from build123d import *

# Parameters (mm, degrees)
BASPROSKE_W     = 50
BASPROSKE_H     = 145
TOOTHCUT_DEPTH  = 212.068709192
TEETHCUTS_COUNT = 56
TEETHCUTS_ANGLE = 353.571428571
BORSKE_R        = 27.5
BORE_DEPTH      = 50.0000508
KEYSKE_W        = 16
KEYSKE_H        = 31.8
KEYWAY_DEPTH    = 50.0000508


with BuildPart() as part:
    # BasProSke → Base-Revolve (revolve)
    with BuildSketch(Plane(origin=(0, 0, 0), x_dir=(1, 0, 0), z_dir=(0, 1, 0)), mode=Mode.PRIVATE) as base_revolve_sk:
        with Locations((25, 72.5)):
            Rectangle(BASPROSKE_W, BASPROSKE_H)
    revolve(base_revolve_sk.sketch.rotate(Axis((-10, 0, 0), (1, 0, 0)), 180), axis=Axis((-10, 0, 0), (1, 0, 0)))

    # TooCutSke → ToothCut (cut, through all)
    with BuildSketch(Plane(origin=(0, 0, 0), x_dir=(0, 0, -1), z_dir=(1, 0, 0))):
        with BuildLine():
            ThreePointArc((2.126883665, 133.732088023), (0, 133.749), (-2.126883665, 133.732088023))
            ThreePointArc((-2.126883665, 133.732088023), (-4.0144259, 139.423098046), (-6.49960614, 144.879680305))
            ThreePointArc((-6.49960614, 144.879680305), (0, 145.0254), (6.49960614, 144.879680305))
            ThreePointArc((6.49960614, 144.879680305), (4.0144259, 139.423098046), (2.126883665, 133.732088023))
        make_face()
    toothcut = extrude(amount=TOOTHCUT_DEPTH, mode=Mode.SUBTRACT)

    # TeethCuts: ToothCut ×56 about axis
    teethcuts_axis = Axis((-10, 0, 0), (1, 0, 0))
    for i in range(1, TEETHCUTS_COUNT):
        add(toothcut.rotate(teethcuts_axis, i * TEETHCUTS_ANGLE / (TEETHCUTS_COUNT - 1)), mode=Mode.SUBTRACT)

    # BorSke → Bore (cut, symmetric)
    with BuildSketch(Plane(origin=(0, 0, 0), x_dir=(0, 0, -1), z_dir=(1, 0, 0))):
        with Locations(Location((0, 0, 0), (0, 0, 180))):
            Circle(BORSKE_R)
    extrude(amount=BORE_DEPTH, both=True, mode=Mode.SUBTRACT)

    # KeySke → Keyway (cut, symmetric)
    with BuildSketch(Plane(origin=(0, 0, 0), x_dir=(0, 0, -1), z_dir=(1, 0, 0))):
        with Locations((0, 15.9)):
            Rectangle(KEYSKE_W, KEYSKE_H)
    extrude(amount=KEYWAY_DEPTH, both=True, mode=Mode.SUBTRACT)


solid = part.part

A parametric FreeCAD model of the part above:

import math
import FreeCAD as App
import Part
import Sketcher

V = App.Vector

doc = App.newDocument("Part")
body = doc.addObject("PartDesign::Body", "Body")

# Sketch on XZ plane
sketch1 = body.newObject("Sketcher::SketchObject", "Sketch")
sketch1.AttachmentSupport = (doc.getObject("XZ_Plane"), [""])
sketch1.MapMode = "FlatFace"
sketch1.addGeometry([
    Part.LineSegment(V(0, -145, 0), V(0, 0, 0)),
    Part.LineSegment(V(0, 0, 0), V(50, 0, 0)),
    Part.LineSegment(V(50, 0, 0), V(50, -145, 0)),
    Part.LineSegment(V(50, -145, 0), V(0, -145, 0)),
], False)
sketch1.addConstraint([
    Sketcher.Constraint("Coincident", 0, 2, 1, 1),
    Sketcher.Constraint("Coincident", 1, 2, 2, 1),
    Sketcher.Constraint("Coincident", 2, 2, 3, 1),
    Sketcher.Constraint("Coincident", 3, 2, 0, 1),
    Sketcher.Constraint("Vertical", 0),
    Sketcher.Constraint("Horizontal", 1),
    Sketcher.Constraint("Vertical", 2),
    Sketcher.Constraint("Horizontal", 3),
    Sketcher.Constraint("Coincident", 0, 2, -1, 1),
    Sketcher.Constraint("DistanceX", 1, 1, 1, 2, 50.0),
    Sketcher.Constraint("DistanceY", 0, 1, 0, 2, 145.0),
])
revolution = body.newObject("PartDesign::Revolution", "Revolution")
revolution.Profile = sketch1
revolution.ReferenceAxis = (sketch1, ["H_Axis"])
revolution.Angle = 360

# Sketch on YZ plane
sketch2 = body.newObject("Sketcher::SketchObject", "Sketch001")
sketch2.AttachmentSupport = (doc.getObject("YZ_Plane"), [""])
sketch2.MapMode = "FlatFace"
sketch2.addGeometry([
    Part.ArcOfCircle(Part.Circle(V(-0.000003, 0, 0), V(0, 0, 1), 133.749003), math.radians(-0.911159), math.radians(0.911159)),
    Part.ArcOfCircle(Part.Circle(V(118.973666, -56.147148, 0), V(0, 0, 1), 56), math.radians(62.444514), math.radians(74.71959)),
    Part.ArcOfCircle(Part.Circle(V(0, 0, 0), V(0, 0, 1), 145.0254), math.radians(-2.568686), math.radians(2.568686)),
    Part.ArcOfCircle(Part.Circle(V(118.973666, 56.147148, 0), V(0, 0, 1), 56), math.radians(-74.71959), math.radians(-62.444514)),
], False)
sketch2.addConstraint([
    Sketcher.Constraint("Coincident", 0, 1, 1, 2),
    Sketcher.Constraint("Coincident", 1, 1, 2, 1),
    Sketcher.Constraint("Coincident", 2, 2, 3, 2),
    Sketcher.Constraint("Coincident", 3, 1, 0, 2),
    Sketcher.Constraint("Coincident", 0, 3, -1, 1),
    Sketcher.Constraint("Coincident", 2, 3, -1, 1),
    Sketcher.Constraint("Equal", 1, 3),
    Sketcher.Constraint("Symmetric", 1, 3, 3, 3, -1),
    Sketcher.Constraint("Radius", 1, 56.0),
    Sketcher.Constraint("Radius", 2, 145.0254),
    Sketcher.Constraint("Radius", 0, 133.749003),
    Sketcher.Constraint("DistanceY", 1, 3, -1, 1, 56.147148),
    Sketcher.Constraint("DistanceX", -1, 1, 2, 2, 144.87968),
])
pocket1 = body.newObject("PartDesign::Pocket", "Pocket")
pocket1.Profile = sketch2
pocket1.Type = "ThroughAll"
pocket1.Reversed = True
doc.recompute()

polarpattern = body.newObject("PartDesign::PolarPattern", "PolarPattern")
polarpattern.Originals = [pocket1]
polarpattern.Axis = (doc.getObject("X_Axis"), [""])
polarpattern.Angle = 360
polarpattern.Occurrences = 56
body.Tip = polarpattern

# Sketch on YZ plane
sketch3 = body.newObject("Sketcher::SketchObject", "Sketch002")
sketch3.AttachmentSupport = (doc.getObject("YZ_Plane"), [""])
sketch3.MapMode = "FlatFace"
sketch3.addGeometry(Part.Circle(V(0, 0, 0), V(0, 0, 1), 27.5), False)
sketch3.addConstraint([
    Sketcher.Constraint("Coincident", 0, 3, -1, 1),
    Sketcher.Constraint("Diameter", 0, 55.0),
])
pocket2 = body.newObject("PartDesign::Pocket", "Pocket001")
pocket2.Profile = sketch3
pocket2.Length = 100.000102
pocket2.Midplane = True

# Sketch on YZ plane
sketch4 = body.newObject("Sketcher::SketchObject", "Sketch003")
sketch4.AttachmentSupport = (doc.getObject("YZ_Plane"), [""])
sketch4.MapMode = "FlatFace"
sketch4.addGeometry([
    Part.LineSegment(V(31.8, 8, 0), V(0, 8, 0)),
    Part.LineSegment(V(0, 8, 0), V(0, -8, 0)),
    Part.LineSegment(V(0, -8, 0), V(31.8, -8, 0)),
    Part.LineSegment(V(31.8, -8, 0), V(31.8, 8, 0)),
], False)
sketch4.addConstraint([
    Sketcher.Constraint("Coincident", 0, 2, 1, 1),
    Sketcher.Constraint("Coincident", 1, 2, 2, 1),
    Sketcher.Constraint("Coincident", 2, 2, 3, 1),
    Sketcher.Constraint("Coincident", 3, 2, 0, 1),
    Sketcher.Constraint("Horizontal", 0),
    Sketcher.Constraint("Vertical", 1),
    Sketcher.Constraint("Horizontal", 2),
    Sketcher.Constraint("Vertical", 3),
    Sketcher.Constraint("Symmetric", 0, 2, 1, 2, -1, 1),
    Sketcher.Constraint("DistanceY", 1, 2, 1, 1, 16.0),
    Sketcher.Constraint("DistanceX", 0, 2, 0, 1, 31.8),
])
pocket3 = body.newObject("PartDesign::Pocket", "Pocket002")
pocket3.Profile = sketch4
pocket3.Length = 100.000102
pocket3.Midplane = True

doc.recompute()
